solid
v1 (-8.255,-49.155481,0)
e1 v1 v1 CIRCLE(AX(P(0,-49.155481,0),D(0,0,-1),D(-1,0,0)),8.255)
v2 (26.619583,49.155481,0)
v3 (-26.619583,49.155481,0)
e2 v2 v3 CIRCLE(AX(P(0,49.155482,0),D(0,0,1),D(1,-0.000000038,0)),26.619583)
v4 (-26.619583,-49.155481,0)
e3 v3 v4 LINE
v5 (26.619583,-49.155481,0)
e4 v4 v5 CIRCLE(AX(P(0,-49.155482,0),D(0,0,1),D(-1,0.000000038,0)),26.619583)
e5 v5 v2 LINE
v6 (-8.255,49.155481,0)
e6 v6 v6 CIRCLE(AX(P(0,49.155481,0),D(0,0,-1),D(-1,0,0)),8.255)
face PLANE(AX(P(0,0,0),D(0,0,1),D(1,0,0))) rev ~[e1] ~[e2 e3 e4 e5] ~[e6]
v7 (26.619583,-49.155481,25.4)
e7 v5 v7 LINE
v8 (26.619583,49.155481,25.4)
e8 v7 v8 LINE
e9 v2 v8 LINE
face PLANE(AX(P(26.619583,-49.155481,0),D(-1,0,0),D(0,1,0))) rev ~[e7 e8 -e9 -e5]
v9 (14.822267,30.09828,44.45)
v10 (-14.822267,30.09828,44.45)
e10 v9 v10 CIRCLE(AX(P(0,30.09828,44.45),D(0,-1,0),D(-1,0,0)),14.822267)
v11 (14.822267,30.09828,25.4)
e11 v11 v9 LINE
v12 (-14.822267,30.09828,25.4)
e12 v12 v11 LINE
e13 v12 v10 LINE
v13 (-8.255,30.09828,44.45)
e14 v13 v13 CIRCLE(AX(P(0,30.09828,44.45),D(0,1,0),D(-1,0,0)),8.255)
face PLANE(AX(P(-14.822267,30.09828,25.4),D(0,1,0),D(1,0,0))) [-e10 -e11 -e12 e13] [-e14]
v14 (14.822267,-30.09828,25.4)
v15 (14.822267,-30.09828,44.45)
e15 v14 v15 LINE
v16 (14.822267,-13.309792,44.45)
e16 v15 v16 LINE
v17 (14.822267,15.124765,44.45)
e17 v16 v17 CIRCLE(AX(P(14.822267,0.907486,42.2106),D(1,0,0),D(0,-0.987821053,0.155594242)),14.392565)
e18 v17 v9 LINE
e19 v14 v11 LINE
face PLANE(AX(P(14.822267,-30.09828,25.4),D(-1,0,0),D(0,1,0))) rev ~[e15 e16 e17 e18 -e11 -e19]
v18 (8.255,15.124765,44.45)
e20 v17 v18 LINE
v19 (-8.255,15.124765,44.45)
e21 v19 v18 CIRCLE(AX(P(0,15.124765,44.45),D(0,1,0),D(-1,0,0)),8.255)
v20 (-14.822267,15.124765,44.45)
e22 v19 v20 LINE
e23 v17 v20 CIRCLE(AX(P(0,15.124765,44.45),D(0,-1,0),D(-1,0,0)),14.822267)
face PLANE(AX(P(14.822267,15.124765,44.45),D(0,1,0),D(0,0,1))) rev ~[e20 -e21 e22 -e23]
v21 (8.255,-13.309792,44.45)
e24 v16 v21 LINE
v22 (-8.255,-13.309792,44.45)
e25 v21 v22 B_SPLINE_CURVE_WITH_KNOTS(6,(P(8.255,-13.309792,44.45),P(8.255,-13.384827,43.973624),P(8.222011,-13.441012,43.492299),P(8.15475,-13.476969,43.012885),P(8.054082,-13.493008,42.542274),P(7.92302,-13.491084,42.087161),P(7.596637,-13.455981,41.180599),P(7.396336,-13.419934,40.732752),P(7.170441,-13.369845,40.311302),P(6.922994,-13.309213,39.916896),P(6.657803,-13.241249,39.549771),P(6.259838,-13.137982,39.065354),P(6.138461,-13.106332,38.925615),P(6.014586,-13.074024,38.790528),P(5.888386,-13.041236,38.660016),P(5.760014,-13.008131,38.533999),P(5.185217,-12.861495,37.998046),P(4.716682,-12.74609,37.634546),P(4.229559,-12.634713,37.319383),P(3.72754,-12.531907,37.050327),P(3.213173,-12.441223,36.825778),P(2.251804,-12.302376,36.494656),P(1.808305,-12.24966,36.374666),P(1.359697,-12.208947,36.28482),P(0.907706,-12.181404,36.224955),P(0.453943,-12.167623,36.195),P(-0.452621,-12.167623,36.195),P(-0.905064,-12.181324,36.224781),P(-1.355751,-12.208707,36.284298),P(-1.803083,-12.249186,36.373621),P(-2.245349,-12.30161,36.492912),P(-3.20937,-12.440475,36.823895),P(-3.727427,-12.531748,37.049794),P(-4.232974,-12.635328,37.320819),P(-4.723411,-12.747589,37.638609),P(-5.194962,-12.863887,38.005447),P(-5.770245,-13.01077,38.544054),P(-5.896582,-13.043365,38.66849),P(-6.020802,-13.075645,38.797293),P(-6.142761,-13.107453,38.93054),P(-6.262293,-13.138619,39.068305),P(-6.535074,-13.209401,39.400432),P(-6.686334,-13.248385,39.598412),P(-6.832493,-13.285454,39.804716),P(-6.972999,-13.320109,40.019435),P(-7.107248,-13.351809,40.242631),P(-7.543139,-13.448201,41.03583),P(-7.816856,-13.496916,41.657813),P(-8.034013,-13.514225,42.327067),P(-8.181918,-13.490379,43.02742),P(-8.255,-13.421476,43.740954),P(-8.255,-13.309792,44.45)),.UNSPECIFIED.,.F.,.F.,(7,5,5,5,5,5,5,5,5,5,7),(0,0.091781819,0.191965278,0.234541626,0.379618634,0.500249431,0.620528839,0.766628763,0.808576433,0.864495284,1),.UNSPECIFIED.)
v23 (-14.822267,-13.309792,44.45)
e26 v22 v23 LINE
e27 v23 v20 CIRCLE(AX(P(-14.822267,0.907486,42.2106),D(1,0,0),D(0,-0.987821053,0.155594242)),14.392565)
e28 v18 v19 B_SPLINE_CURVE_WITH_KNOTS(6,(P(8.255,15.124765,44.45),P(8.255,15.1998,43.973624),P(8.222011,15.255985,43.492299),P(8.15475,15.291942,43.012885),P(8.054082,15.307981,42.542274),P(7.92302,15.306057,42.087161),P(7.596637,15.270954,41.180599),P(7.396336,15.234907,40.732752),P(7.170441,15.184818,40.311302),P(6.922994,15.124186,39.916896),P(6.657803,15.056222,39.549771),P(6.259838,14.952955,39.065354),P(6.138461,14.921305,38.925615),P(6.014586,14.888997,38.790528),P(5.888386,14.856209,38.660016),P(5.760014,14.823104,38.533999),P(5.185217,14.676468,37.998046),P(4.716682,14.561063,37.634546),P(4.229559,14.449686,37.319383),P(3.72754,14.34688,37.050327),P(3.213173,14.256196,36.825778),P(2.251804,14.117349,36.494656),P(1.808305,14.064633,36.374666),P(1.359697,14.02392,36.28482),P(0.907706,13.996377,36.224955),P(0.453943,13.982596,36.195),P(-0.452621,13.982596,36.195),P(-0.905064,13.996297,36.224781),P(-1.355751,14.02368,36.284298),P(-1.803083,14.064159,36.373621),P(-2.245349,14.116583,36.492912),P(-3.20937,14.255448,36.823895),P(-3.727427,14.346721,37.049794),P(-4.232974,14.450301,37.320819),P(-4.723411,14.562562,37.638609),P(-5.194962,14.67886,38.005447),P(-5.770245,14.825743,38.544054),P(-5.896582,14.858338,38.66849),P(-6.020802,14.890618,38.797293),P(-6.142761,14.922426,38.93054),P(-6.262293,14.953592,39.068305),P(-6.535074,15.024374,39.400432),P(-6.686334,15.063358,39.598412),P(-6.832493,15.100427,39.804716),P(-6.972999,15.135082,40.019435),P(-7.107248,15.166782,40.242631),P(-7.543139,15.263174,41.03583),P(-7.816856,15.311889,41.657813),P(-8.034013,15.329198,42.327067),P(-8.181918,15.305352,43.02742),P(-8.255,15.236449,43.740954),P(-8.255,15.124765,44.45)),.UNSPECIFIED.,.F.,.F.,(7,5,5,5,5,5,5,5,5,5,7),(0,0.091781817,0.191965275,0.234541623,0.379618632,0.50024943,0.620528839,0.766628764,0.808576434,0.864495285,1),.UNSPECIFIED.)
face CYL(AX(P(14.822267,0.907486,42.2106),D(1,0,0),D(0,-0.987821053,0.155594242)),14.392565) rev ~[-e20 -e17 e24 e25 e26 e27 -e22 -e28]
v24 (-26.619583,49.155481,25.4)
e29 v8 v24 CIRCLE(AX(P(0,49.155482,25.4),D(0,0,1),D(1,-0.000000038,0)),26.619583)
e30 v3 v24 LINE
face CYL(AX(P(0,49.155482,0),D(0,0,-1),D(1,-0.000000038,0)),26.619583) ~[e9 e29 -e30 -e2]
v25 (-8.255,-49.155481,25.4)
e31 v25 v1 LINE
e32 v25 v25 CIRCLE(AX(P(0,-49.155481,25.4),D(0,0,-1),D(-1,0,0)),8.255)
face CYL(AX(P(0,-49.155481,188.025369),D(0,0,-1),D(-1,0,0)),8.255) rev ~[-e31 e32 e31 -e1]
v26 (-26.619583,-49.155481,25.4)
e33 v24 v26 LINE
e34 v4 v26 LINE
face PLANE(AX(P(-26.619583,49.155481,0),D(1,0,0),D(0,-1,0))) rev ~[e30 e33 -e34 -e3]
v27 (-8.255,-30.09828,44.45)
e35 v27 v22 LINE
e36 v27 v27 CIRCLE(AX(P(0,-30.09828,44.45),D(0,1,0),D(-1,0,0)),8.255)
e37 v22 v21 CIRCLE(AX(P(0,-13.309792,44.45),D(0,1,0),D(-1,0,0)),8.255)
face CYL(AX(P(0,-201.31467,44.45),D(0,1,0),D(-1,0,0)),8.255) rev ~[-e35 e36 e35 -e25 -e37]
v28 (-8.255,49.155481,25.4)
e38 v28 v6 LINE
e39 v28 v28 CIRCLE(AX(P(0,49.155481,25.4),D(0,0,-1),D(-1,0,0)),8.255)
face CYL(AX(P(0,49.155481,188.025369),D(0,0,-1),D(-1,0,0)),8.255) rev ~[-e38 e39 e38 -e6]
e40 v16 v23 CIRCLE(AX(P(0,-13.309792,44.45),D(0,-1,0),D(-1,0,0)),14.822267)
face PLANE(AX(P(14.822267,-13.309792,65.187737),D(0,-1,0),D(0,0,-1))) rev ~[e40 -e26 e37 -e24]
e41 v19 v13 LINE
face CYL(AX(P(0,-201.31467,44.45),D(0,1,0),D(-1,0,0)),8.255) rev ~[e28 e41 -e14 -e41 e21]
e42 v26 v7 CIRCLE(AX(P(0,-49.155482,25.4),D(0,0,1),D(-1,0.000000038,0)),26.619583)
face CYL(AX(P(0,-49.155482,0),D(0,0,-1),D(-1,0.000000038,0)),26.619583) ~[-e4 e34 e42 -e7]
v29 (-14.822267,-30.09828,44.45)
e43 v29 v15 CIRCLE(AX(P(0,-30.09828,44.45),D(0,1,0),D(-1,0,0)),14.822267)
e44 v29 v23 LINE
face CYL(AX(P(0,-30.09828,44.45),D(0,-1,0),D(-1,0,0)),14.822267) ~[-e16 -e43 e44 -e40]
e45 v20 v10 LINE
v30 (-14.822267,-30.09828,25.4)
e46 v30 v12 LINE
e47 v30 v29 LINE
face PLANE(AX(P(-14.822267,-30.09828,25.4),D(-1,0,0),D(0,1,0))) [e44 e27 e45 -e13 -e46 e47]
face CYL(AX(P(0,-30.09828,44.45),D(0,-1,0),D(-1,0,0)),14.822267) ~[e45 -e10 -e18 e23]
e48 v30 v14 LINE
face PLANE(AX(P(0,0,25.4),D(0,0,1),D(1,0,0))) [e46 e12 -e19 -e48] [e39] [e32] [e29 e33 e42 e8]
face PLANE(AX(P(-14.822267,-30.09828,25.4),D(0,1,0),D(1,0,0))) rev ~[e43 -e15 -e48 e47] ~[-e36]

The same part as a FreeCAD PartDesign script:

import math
import FreeCAD as App
import Part
import Sketcher
from FreeCAD import Vector
Q = App.Units.Quantity


def add_polygon(sketch, points):
    """Adds a closed chain of lines whose ends are joined by coincident constraints."""
    first, n = sketch.GeometryCount, len(points)
    for a, b in zip(points, points[1:] + points[:1]):
        sketch.addGeometry(Part.LineSegment(App.Vector(*a, 0), App.Vector(*b, 0)), False)
    for i in range(n):
        sketch.addConstraint(Sketcher.Constraint("Coincident", first + i, 2, first + (i + 1) % n, 1))

doc = App.newDocument("Part")
body = doc.addObject("PartDesign::Body", "Body")

# Sketch on XY plane
sketch1 = body.newObject("Sketcher::SketchObject", "Sketch")
sketch1.AttachmentSupport = (doc.getObject("XY_Plane"), [""])
sketch1.MapMode = "FlatFace"
sketch1.addGeometry([
    Part.LineSegment(Vector(26.619583, -49.155481, 0), Vector(26.619583, 49.155481, 0)),
    Part.ArcOfCircle(Part.Circle(Vector(0, 49.155482, 0), Vector(0, 0, 1), 26.619583), math.radians(-0.000002), math.radians(180.000002)),
    Part.LineSegment(Vector(-26.619583, 49.155481, 0), Vector(-26.619583, -49.155481, 0)),
    Part.ArcOfCircle(Part.Circle(Vector(0, -49.155482, 0), Vector(0, 0, 1), 26.619583), math.radians(179.999998), math.radians(360.000002)),
], False)
sketch1.addConstraint([
    Sketcher.Constraint("Tangent", 0, 2, 1, 1),
    Sketcher.Constraint("Tangent", 1, 2, 2, 1),
    Sketcher.Constraint("Tangent", 2, 2, 3, 1),
    Sketcher.Constraint("Tangent", 3, 2, 0, 1),
    Sketcher.Constraint("Vertical", 0),
    Sketcher.Constraint("Vertical", 2),
    Sketcher.Constraint("Symmetric", 1, 3, 3, 3, -1, 1),
    Sketcher.Constraint("Radius", 1, 26.619583),
    Sketcher.Constraint("DistanceY", 0, 1, 0, 2, 98.310962),
])
pad1 = body.newObject("PartDesign::Pad", "Pad")
pad1.Profile = sketch1
pad1.Length = Q("1 in")

# Sketch on XY plane
sketch2 = body.newObject("Sketcher::SketchObject", "Sketch001")
sketch2.AttachmentSupport = (doc.getObject("XY_Plane"), [""])
sketch2.MapMode = "FlatFace"
sketch2.AttachmentOffset = App.Placement(Vector(0, 0, 1 * 25.4), App.Rotation())
sketch2.addGeometry([
    Part.Circle(Vector(0, 49.155481, 0), Vector(0, 0, 1), 8.255),
    Part.Circle(Vector(0, -49.155481, 0), Vector(0, 0, 1), 8.255),
], False)
sketch2.addConstraint([
    Sketcher.Constraint("Equal", 0, 1),
    Sketcher.Constraint("Symmetric", 0, 3, 1, 3, -1, 1),
    Sketcher.Constraint("PointOnObject", 0, 3, -2),
    Sketcher.Constraint("Diameter", 0, Q("0.65 in")),
    Sketcher.Constraint("DistanceY", -1, 1, 0, 3, 49.155481),
])
doc.recompute()
hole = body.newObject("PartDesign::Hole", "Hole")
hole.Profile = sketch2
hole.ThreadType = "None"
hole.Diameter = Q("0.65 in")
hole.DepthType = "ThroughAll"

# Sketch on XY plane
sketch3 = body.newObject("Sketcher::SketchObject", "Sketch002")
sketch3.AttachmentSupport = (doc.getObject("XY_Plane"), [""])
sketch3.MapMode = "FlatFace"
sketch3.AttachmentOffset = App.Placement(Vector(0, 0, 1 * 25.4), App.Rotation())
add_polygon(sketch3, [(-14.822267, 30.09828), (-14.822267, -30.09828), (14.822267, -30.09828), (14.822267, 30.09828)])  # lines 0-3
sketch3.addConstraint([
    Sketcher.Constraint("Vertical", 0),
    Sketcher.Constraint("Horizontal", 1),
    Sketcher.Constraint("Vertical", 2),
    Sketcher.Constraint("Horizontal", 3),
    Sketcher.Constraint("Symmetric", 0, 2, 2, 2, -1, 1),
    Sketcher.Constraint("DistanceY", 0, 2, 0, 1, 60.19656),
    Sketcher.Constraint("DistanceX", 1, 1, 1, 2, 29.644534),
])
pad2 = body.newObject("PartDesign::Pad", "Pad001")
pad2.Profile = sketch3
pad2.Length = Q("1.5 in")

# Sketch on XZ plane
sketch4 = body.newObject("Sketcher::SketchObject", "Sketch003")
sketch4.AttachmentSupport = (doc.getObject("XZ_Plane"), [""])
sketch4.MapMode = "FlatFace"
sketch4.AttachmentOffset = App.Placement(Vector(0, 0, 30.09828), App.Rotation())
sketch4.addGeometry([
    Part.LineSegment(Vector(14.822267, 44.45, 0), Vector(14.822267, 63.5, 0)),
    Part.LineSegment(Vector(14.822267, 63.5, 0), Vector(-14.822267, 63.5, 0)),
    Part.LineSegment(Vector(-14.822267, 63.5, 0), Vector(-14.822267, 44.45, 0)),
    Part.ArcOfCircle(Part.Circle(Vector(0, 44.45, 0), Vector(0, 0, 1), 14.822267), math.radians(0), math.radians(180)),
], False)
sketch4.addConstraint([
    Sketcher.Constraint("Coincident", 0, 2, 1, 1),
    Sketcher.Constraint("Coincident", 1, 2, 2, 1),
    Sketcher.Constraint("Tangent", 2, 2, 3, 2),
    Sketcher.Constraint("Tangent", 3, 1, 0, 1),
    Sketcher.Constraint("Vertical", 0),
    Sketcher.Constraint("Horizontal", 1),
    Sketcher.Constraint("Vertical", 2),
    Sketcher.Constraint("PointOnObject", 3, 3, -2),
    Sketcher.Constraint("DistanceY", 0, 1, 0, 2, Q("0.75 in")),
    Sketcher.Constraint("DistanceY", -1, 1, 0, 2, Q("2.5 in")),
    Sketcher.Constraint("Radius", 3, 14.822267),
])
pocket1 = body.newObject("PartDesign::Pocket", "Pocket")
pocket1.Profile = sketch4
pocket1.Length = Q("2.64 in")

# Sketch on XZ plane
sketch5 = body.newObject("Sketcher::SketchObject", "Sketch004")
sketch5.AttachmentSupport = (doc.getObject("XZ_Plane"), [""])
sketch5.MapMode = "FlatFace"
sketch5.AttachmentOffset = App.Placement(Vector(0, 0, 30.09828), App.Rotation())
sketch5.addGeometry(Part.Circle(Vector(0, 44.45, 0), Vector(0, 0, 1), 8.255), False)
sketch5.addConstraint([
    Sketcher.Constraint("PointOnObject", 0, 3, -2),
    Sketcher.Constraint("Diameter", 0, Q("0.65 in")),
    Sketcher.Constraint("DistanceY", -1, 1, 0, 3, Q("1.75 in")),
])
doc.recompute()
hole2 = body.newObject("PartDesign::Hole", "Hole001")
hole2.Profile = sketch5
hole2.ThreadType = "None"
hole2.Diameter = Q("0.65 in")
hole2.DepthType = "ThroughAll"

# Sketch on YZ plane
sketch6 = body.newObject("Sketcher::SketchObject", "Sketch005")
sketch6.AttachmentSupport = (doc.getObject("YZ_Plane"), [""])
sketch6.MapMode = "FlatFace"
sketch6.AttachmentOffset = App.Placement(Vector(0, 0, 14.822267), App.Rotation())
sketch6.addGeometry([
    Part.LineSegment(Vector(-13.309792, 65.187737, 0), Vector(-13.309792, 44.45, 0)),
    Part.ArcOfCircle(Part.Circle(Vector(0.907486, 42.2106, 0), Vector(0, 0, 1), 14.392565), math.radians(171.048738), math.radians(368.951262)),
    Part.LineSegment(Vector(15.124765, 44.45, 0), Vector(15.124765, 65.187737, 0)),
    Part.LineSegment(Vector(15.124765, 65.187737, 0), Vector(-13.309792, 65.187737, 0)),
], False)
sketch6.addConstraint([
    Sketcher.Constraint("Coincident", 0, 2, 1, 1),
    Sketcher.Constraint("Coincident", 1, 2, 2, 1),
    Sketcher.Constraint("Coincident", 2, 2, 3, 1),
    Sketcher.Constraint("Coincident", 3, 2, 0, 1),
    Sketcher.Constraint("Vertical", 0),
    Sketcher.Constraint("Vertical", 2),
    Sketcher.Constraint("Horizontal", 3),
    Sketcher.Constraint("Horizontal", 0, 2, 1, 2),
    Sketcher.Constraint("DistanceY", -1, 1, 0, 2, Q("1.75 in")),
    Sketcher.Constraint("Radius", 1, 14.392565),
    Sketcher.Constraint("DistanceY", -1, 1, 1, 3, 42.2106),
    Sketcher.Constraint("DistanceY", 0, 2, 0, 1, 20.737737),
    Sketcher.Constraint("DistanceX", -1, 1, 1, 3, 0.907486),
])
pocket2 = body.newObject("PartDesign::Pocket", "Pocket001")
pocket2.Profile = sketch6
pocket2.Type = "ThroughAll"

doc.recompute()
